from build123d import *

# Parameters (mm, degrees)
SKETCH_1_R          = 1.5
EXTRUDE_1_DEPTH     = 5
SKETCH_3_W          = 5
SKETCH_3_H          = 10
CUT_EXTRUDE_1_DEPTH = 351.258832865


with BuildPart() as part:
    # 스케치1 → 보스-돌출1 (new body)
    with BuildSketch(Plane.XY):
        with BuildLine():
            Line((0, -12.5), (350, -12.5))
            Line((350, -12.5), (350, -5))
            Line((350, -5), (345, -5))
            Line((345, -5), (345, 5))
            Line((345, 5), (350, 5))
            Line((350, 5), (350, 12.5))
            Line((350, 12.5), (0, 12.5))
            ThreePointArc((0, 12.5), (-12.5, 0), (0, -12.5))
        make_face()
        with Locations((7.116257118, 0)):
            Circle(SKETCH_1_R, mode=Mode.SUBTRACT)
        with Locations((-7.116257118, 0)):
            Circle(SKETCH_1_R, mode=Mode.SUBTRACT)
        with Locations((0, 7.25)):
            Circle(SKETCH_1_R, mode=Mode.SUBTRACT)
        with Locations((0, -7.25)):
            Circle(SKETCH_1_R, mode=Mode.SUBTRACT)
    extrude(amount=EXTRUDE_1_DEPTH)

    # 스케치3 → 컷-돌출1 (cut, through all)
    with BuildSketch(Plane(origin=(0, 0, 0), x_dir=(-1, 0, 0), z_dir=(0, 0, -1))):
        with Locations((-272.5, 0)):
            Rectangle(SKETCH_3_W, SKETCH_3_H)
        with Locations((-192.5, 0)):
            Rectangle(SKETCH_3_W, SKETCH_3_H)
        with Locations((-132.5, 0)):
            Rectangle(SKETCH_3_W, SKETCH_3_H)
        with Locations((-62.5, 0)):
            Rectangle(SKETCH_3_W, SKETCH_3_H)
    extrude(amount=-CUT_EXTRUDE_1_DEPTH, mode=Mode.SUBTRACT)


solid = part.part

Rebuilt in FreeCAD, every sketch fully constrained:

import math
import FreeCAD as App
import Part
import Sketcher
from FreeCAD import Vector
Q = App.Units.Quantity


def add_polygon(sketch, points):
    """Adds a closed chain of lines whose ends are joined by coincident constraints."""
    first, n = sketch.GeometryCount, len(points)
    for a, b in zip(points, points[1:] + points[:1]):
        sketch.addGeometry(Part.LineSegment(App.Vector(*a, 0), App.Vector(*b, 0)), False)
    for i in range(n):
        sketch.addConstraint(Sketcher.Constraint("Coincident", first + i, 2, first + (i + 1) % n, 1))

doc = App.newDocument("Part")
body = doc.addObject("PartDesign::Body", "Body")

# Sketch on XY plane
sketch1 = doc.addObject("Sketcher::SketchObject", "Sketch")
body.addObject(sketch1)
sketch1.AttachmentSupport = (doc.XY_Plane, [""])
sketch1.MapMode = "FlatFace"
sketch1.addGeometry([
    Part.LineSegment(Vector(0, -12.5, 0), Vector(350, -12.5, 0)),  # 0
    Part.LineSegment(Vector(350, -12.5, 0), Vector(350, -5, 0)),  # 1
    Part.LineSegment(Vector(350, -5, 0), Vector(345, -5, 0)),  # 2
    Part.LineSegment(Vector(345, -5, 0), Vector(345, 5, 0)),  # 3
    Part.LineSegment(Vector(345, 5, 0), Vector(350, 5, 0)),  # 4
    Part.LineSegment(Vector(350, 5, 0), Vector(350, 12.5, 0)),  # 5
    Part.LineSegment(Vector(350, 12.5, 0), Vector(0, 12.5, 0)),  # 6
    Part.ArcOfCircle(Part.Circle(Vector(0, 0, 0), Vector(0, 0, 1), 12.5), math.radians(90), math.radians(270)),  # 7
    Part.Circle(Vector(0, -7.25, 0), Vector(0, 0, 1), 1.5),  # 8
    Part.Circle(Vector(-7.116257, 0, 0), Vector(0, 0, 1), 1.5),  # 9
    Part.Circle(Vector(7.116257, 0, 0), Vector(0, 0, 1), 1.5),  # 10
    Part.Circle(Vector(0, 7.25, 0), Vector(0, 0, 1), 1.5),  # 11
], False)
sketch1.addConstraint([
    Sketcher.Constraint("Coincident", 0, 2, 1, 1),
    Sketcher.Constraint("Coincident", 1, 2, 2, 1),
    Sketcher.Constraint("Coincident", 2, 2, 3, 1),
    Sketcher.Constraint("Coincident", 3, 2, 4, 1),
    Sketcher.Constraint("Coincident", 4, 2, 5, 1),
    Sketcher.Constraint("Coincident", 5, 2, 6, 1),
    Sketcher.Constraint("Tangent", 6, 2, 7, 1),
    Sketcher.Constraint("Tangent", 7, 2, 0, 1),
    Sketcher.Constraint("Horizontal", 0),
    Sketcher.Constraint("Vertical", 1),
    Sketcher.Constraint("Horizontal", 2),
    Sketcher.Constraint("Vertical", 3),
    Sketcher.Constraint("Horizontal", 4),
    Sketcher.Constraint("Vertical", 5),
    Sketcher.Constraint("Horizontal", 6),
    Sketcher.Constraint("Coincident", 7, 3, -1, 1),
    Sketcher.Constraint("Equal", 8, 9),
    Sketcher.Constraint("Equal", 9, 10),
    Sketcher.Constraint("Equal", 10, 11),
    Sketcher.Constraint("Symmetric", 9, 3, 10, 3, -1, 1),
    Sketcher.Constraint("Symmetric", 8, 3, 11, 3, -1, 1),
    Sketcher.Constraint("Symmetric", 1, 2, 4, 2, -1),
    Sketcher.Constraint("PointOnObject", 8, 3, -2),
    Sketcher.Constraint("PointOnObject", 9, 3, -1),
    Sketcher.Constraint("Diameter", 8, Q("3 mm")),
    Sketcher.Constraint("Radius", 7, Q("12.5 mm")),
    Sketcher.Constraint("DistanceX", 0, 1, 0, 2, Q("350 mm")),
    Sketcher.Constraint("DistanceX", 2, 2, 2, 1, Q("5 mm")),
    Sketcher.Constraint("DistanceY", 3, 1, 3, 2, Q("10 mm")),
    Sketcher.Constraint("DistanceY", 8, 3, 11, 3, Q("14.5 mm")),
    Sketcher.Constraint("DistanceX", 9, 3, -1, 1, Q("7.116257 mm")),
])
pad1 = doc.addObject("PartDesign::Pad", "Pad")
body.addObject(pad1)
pad1.Profile = sketch1
pad1.Length = 5

# Sketch on XY plane
sketch2 = doc.addObject("Sketcher::SketchObject", "Sketch001")
body.addObject(sketch2)
sketch2.AttachmentSupport = (doc.XY_Plane, [""])
sketch2.MapMode = "FlatFace"
add_polygon(sketch2, [(275, 5), (275, -5), (270, -5), (270, 5)])  # lines 0-3
add_polygon(sketch2, [(195, 5), (195, -5), (190, -5), (190, 5)])  # lines 4-7
add_polygon(sketch2, [(135, 5), (135, -5), (130, -5), (130, 5)])  # lines 8-11
add_polygon(sketch2, [(65, 5), (65, -5), (60, -5), (60, 5)])  # lines 12-15
sketch2.addConstraint([
    Sketcher.Constraint("Vertical", 0),
    Sketcher.Constraint("Horizontal", 1),
    Sketcher.Constraint("Vertical", 2),
    Sketcher.Constraint("Horizontal", 3),
    Sketcher.Constraint("Vertical", 4),
    Sketcher.Constraint("Horizontal", 5),
    Sketcher.Constraint("Vertical", 6),
    Sketcher.Constraint("Horizontal", 7),
    Sketcher.Constraint("Vertical", 8),
    Sketcher.Constraint("Horizontal", 9),
    Sketcher.Constraint("Vertical", 10),
    Sketcher.Constraint("Horizontal", 11),
    Sketcher.Constraint("Vertical", 12),
    Sketcher.Constraint("Horizontal", 13),
    Sketcher.Constraint("Vertical", 14),
    Sketcher.Constraint("Horizontal", 15),
    Sketcher.Constraint("Horizontal", 1, 2, 4, 2),
    Sketcher.Constraint("Horizontal", 3, 2, 6, 2),
    Sketcher.Constraint("Horizontal", 5, 2, 8, 2),
    Sketcher.Constraint("Horizontal", 7, 2, 10, 2),
    Sketcher.Constraint("Horizontal", 9, 2, 12, 2),
    Sketcher.Constraint("Horizontal", 11, 2, 14, 2),
    Sketcher.Constraint("Equal", 3, 5),
    Sketcher.Constraint("Equal", 7, 9),
    Sketcher.Constraint("Equal", 11, 13),
    Sketcher.Constraint("DistanceX", 1, 2, 1, 1, Q("5 mm")),
    Sketcher.Constraint("DistanceY", 0, 2, 0, 1, Q("10 mm")),
    Sketcher.Constraint("DistanceX", -1, 1, 0, 2, Q("275 mm")),
    Sketcher.Constraint("DistanceY", 0, 2, -1, 1, Q("5 mm")),
    Sketcher.Constraint("DistanceX", -1, 1, 4, 2, Q("195 mm")),
    Sketcher.Constraint("DistanceX", -1, 1, 8, 2, Q("135 mm")),
    Sketcher.Constraint("DistanceX", -1, 1, 12, 2, Q("65 mm")),
])
pocket1 = doc.addObject("PartDesign::Pocket", "Pocket")
body.addObject(pocket1)
pocket1.Profile = sketch2
pocket1.Type = "ThroughAll"
pocket1.Reversed = True

doc.recompute()
